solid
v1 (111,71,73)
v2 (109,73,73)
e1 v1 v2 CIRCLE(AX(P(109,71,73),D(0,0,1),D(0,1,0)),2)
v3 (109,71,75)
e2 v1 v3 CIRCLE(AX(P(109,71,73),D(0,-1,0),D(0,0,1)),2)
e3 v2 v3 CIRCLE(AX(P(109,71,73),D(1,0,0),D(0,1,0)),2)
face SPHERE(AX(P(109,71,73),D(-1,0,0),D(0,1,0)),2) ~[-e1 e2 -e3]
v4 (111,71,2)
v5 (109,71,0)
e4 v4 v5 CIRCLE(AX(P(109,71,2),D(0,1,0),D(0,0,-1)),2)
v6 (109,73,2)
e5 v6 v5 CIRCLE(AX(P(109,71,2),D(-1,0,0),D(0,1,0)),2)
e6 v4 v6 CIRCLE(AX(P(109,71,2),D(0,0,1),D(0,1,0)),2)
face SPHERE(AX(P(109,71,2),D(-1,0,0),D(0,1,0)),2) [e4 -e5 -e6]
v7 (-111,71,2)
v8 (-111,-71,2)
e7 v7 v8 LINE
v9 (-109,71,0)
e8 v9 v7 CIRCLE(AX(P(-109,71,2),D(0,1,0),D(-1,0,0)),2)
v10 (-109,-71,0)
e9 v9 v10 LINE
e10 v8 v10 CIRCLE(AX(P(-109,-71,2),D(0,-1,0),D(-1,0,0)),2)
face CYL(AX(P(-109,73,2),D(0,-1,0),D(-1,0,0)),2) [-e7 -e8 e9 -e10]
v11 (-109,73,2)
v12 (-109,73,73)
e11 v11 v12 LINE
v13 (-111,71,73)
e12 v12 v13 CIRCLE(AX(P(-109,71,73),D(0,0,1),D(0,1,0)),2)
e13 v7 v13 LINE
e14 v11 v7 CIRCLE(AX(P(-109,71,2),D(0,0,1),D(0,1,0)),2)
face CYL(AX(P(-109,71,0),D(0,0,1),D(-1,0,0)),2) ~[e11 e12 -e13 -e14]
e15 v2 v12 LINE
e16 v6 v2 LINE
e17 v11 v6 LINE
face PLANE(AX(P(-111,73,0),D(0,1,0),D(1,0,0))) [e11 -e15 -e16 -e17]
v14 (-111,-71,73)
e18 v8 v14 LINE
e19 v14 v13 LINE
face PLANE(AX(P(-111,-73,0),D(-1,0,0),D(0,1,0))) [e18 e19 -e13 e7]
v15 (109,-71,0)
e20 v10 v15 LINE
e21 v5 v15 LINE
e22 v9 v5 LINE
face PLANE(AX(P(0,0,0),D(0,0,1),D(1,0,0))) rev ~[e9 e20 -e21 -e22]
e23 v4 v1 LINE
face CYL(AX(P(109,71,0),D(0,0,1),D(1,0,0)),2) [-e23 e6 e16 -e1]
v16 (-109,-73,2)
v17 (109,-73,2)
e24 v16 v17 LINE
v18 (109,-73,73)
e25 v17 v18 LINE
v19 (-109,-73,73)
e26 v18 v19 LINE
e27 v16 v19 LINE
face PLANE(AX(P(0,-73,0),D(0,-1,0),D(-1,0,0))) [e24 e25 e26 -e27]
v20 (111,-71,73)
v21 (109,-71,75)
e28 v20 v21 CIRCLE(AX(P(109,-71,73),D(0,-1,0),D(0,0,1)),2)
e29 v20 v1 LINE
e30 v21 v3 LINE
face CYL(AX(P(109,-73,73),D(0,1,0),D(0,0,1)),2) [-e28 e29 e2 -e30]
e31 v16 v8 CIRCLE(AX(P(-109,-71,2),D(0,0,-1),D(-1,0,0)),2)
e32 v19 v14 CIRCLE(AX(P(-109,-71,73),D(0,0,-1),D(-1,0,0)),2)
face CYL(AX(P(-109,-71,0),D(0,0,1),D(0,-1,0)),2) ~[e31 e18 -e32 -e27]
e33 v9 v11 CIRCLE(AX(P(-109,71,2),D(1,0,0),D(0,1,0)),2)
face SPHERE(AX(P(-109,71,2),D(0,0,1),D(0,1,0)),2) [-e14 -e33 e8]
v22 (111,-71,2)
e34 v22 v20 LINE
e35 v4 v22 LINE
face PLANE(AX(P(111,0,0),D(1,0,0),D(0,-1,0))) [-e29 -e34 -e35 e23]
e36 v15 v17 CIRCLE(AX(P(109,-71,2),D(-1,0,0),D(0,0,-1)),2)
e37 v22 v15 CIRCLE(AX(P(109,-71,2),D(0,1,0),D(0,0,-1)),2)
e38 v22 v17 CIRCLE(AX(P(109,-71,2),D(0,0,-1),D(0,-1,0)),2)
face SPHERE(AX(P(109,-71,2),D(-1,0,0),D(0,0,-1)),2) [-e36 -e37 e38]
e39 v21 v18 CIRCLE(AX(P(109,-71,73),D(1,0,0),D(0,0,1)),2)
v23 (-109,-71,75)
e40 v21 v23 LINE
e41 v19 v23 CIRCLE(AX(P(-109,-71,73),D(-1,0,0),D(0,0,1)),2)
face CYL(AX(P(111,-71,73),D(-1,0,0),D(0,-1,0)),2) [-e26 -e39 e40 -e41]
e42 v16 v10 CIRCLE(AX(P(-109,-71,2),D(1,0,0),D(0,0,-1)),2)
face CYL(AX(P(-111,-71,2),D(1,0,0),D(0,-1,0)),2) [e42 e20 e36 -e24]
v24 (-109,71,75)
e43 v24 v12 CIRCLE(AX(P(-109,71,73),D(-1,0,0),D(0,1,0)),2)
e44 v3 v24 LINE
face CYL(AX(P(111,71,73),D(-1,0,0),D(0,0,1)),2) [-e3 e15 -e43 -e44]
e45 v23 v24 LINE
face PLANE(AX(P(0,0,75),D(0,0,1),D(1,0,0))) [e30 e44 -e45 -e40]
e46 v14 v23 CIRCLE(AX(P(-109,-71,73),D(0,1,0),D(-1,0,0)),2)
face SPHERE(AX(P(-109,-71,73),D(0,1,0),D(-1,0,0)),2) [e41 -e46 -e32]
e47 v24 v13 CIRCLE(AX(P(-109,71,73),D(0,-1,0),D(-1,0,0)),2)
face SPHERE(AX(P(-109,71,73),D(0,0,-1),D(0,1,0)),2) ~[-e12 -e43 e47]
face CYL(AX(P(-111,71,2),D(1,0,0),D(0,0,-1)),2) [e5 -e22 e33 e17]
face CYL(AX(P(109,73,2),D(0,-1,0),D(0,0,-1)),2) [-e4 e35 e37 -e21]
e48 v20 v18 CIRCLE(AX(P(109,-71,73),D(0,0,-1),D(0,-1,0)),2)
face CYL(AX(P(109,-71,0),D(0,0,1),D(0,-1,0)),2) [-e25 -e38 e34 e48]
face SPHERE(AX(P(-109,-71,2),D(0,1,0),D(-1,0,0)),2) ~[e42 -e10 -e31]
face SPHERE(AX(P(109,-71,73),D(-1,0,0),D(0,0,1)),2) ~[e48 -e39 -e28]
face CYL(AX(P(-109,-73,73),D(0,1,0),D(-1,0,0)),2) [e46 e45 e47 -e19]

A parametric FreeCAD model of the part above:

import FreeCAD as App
import Part
import Sketcher

V = App.Vector

doc = App.newDocument("Part")
params = doc.addObject("Spreadsheet::Sheet", "Params")
for row, (alias, value) in enumerate([
    ("sketch1_width", "222 mm"),
    ("sketch1_height", "146 mm"),
    ("pad1_length", "75 mm"),
    ("fillet_radius", "2 mm"),
], start=1):
    params.set(f"A{row}", alias)
    params.set(f"B{row}", "=" + value)
    params.setAlias(f"B{row}", alias)

body = doc.addObject("PartDesign::Body", "Body")

# Sketch on XY plane
sketch1 = body.newObject("Sketcher::SketchObject", "Sketch")
sketch1.AttachmentSupport = (doc.getObject("XY_Plane"), [""])
sketch1.MapMode = "FlatFace"
sketch1.addGeometry([
    Part.LineSegment(V(-111, -73, 0), V(111, -73, 0)),
    Part.LineSegment(V(111, -73, 0), V(111, 73, 0)),
    Part.LineSegment(V(111, 73, 0), V(-111, 73, 0)),
    Part.LineSegment(V(-111, 73, 0), V(-111, -73, 0)),
], False)
sketch1.addConstraint([
    Sketcher.Constraint("Coincident", 0, 2, 1, 1),
    Sketcher.Constraint("Coincident", 1, 2, 2, 1),
    Sketcher.Constraint("Coincident", 2, 2, 3, 1),
    Sketcher.Constraint("Coincident", 3, 2, 0, 1),
    Sketcher.Constraint("Horizontal", 0),
    Sketcher.Constraint("Vertical", 1),
    Sketcher.Constraint("Horizontal", 2),
    Sketcher.Constraint("Vertical", 3),
    Sketcher.Constraint("Symmetric", 0, 2, 2, 2, -1, 1),
    Sketcher.Constraint("DistanceX", 0, 1, 0, 2, 222.0),
    Sketcher.Constraint("DistanceY", 1, 1, 1, 2, 146.0),
])
sketch1.setExpression("Constraints[9]", "Params.sketch1_width")
sketch1.setExpression("Constraints[10]", "Params.sketch1_height")
pad1 = body.newObject("PartDesign::Pad", "Pad")
pad1.Profile = sketch1
pad1.setExpression("Length", "Params.pad1_length")
doc.recompute()

fillet = body.newObject("PartDesign::Fillet", "Fillet")
fillet.Base = (pad1, ["Edge1"])
fillet.UseAllEdges = True
fillet.setExpression("Radius", "Params.fillet_radius")

doc.recompute()
